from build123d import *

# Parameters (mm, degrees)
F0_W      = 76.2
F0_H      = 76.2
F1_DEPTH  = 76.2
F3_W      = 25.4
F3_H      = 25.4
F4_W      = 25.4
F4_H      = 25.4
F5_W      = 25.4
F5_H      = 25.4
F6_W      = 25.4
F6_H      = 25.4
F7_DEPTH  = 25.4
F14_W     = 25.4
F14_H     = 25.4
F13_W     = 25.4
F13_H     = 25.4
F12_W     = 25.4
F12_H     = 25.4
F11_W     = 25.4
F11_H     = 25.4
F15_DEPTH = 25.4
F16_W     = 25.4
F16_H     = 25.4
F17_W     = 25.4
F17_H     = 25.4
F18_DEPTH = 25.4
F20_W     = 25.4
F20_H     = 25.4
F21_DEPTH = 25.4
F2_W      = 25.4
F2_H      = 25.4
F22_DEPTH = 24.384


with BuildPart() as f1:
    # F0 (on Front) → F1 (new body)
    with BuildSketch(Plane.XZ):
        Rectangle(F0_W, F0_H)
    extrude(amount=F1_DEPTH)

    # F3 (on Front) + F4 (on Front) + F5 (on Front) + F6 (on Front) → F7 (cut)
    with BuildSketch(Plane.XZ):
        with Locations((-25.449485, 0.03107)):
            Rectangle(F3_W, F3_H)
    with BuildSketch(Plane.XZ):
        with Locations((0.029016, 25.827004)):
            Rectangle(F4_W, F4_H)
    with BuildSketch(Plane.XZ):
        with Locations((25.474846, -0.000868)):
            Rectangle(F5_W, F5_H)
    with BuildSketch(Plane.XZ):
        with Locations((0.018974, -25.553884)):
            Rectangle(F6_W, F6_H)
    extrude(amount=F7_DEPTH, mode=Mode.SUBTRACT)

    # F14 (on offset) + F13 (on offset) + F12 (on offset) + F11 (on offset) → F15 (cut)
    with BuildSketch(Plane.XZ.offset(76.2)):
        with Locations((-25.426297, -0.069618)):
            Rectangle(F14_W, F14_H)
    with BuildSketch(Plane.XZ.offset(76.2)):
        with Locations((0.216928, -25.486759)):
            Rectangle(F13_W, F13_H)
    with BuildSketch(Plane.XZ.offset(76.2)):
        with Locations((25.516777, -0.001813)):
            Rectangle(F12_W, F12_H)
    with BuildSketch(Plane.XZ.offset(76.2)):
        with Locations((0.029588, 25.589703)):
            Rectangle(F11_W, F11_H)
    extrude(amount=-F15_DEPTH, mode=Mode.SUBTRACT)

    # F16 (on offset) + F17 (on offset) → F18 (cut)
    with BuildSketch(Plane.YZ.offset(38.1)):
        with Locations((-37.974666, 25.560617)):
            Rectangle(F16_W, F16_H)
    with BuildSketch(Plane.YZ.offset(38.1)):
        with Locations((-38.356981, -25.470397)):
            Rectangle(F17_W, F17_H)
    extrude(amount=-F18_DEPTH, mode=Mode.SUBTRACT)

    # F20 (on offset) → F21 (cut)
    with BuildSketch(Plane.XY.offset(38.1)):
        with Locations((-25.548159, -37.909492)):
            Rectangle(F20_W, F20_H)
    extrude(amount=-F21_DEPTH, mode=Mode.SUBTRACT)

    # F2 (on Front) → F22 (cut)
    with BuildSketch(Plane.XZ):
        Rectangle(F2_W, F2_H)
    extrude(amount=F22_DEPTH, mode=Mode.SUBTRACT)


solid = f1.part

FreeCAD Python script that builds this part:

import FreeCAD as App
import Part
import Sketcher
Q = App.Units.Quantity

doc = App.newDocument("Part")
body = doc.addObject("PartDesign::Body", "Body")

# Sketch on XZ plane
sketch1 = body.newObject("Sketcher::SketchObject", "Sketch")
sketch1.AttachmentSupport = (doc.getObject("XZ_Plane"), [""])
sketch1.MapMode = "FlatFace"
sketch1.addGeometry([
    Part.LineSegment(App.Vector(-38, 38, 0), App.Vector(-38, -38, 0)),
    Part.LineSegment(App.Vector(-38, -38, 0), App.Vector(38, -38, 0)),
    Part.LineSegment(App.Vector(38, -38, 0), App.Vector(38, 38, 0)),
    Part.LineSegment(App.Vector(38, 38, 0), App.Vector(-38, 38, 0)),
], False)
sketch1.addConstraint([
    Sketcher.Constraint("Coincident", 0, 2, 1, 1),
    Sketcher.Constraint("Coincident", 1, 2, 2, 1),
    Sketcher.Constraint("Coincident", 2, 2, 3, 1),
    Sketcher.Constraint("Coincident", 3, 2, 0, 1),
    Sketcher.Constraint("Vertical", 0),
    Sketcher.Constraint("Horizontal", 1),
    Sketcher.Constraint("Vertical", 2),
    Sketcher.Constraint("Horizontal", 3),
    Sketcher.Constraint("Symmetric", 0, 2, 2, 2, -1, 1),
    Sketcher.Constraint("Equal", 3, 0),
    Sketcher.Constraint("DistanceX", 1, 1, 1, 2, Q("3 in")),
])
pad1 = body.newObject("PartDesign::Pad", "Pad")
pad1.Profile = sketch1
pad1.Length = Q("3 in")

# Sketch on XZ plane
sketch2 = body.newObject("Sketcher::SketchObject", "Sketch001")
sketch2.AttachmentSupport = (doc.getObject("XZ_Plane"), [""])
sketch2.MapMode = "FlatFace"
sketch2.addGeometry([
    Part.LineSegment(App.Vector(-38, 13, 0), App.Vector(-38, -13, 0)),  # 0
    Part.LineSegment(App.Vector(-38, -13, 0), App.Vector(-13, -13, 0)),  # 1
    Part.LineSegment(App.Vector(-13, -13, 0), App.Vector(-13, 13, 0)),  # 2
    Part.LineSegment(App.Vector(-13, 13, 0), App.Vector(-38, 13, 0)),  # 3
    Part.LineSegment(App.Vector(-13, 39, 0), App.Vector(-13, 13, 0)),  # 4
    Part.LineSegment(App.Vector(-13, 13, 0), App.Vector(13, 13, 0)),  # 5
    Part.LineSegment(App.Vector(13, 13, 0), App.Vector(13, 39, 0)),  # 6
    Part.LineSegment(App.Vector(13, 39, 0), App.Vector(-13, 39, 0)),  # 7
    Part.LineSegment(App.Vector(13, 13, 0), App.Vector(13, -13, 0)),  # 8
    Part.LineSegment(App.Vector(13, -13, 0), App.Vector(38, -13, 0)),  # 9
    Part.LineSegment(App.Vector(38, -13, 0), App.Vector(38, 13, 0)),  # 10
    Part.LineSegment(App.Vector(38, 13, 0), App.Vector(13, 13, 0)),  # 11
    Part.LineSegment(App.Vector(-13, -13, 0), App.Vector(-13, -38, 0)),  # 12
    Part.LineSegment(App.Vector(-13, -38, 0), App.Vector(13, -38, 0)),  # 13
    Part.LineSegment(App.Vector(13, -38, 0), App.Vector(13, -13, 0)),  # 14
    Part.LineSegment(App.Vector(13, -13, 0), App.Vector(-13, -13, 0)),  # 15
], False)
sketch2.addConstraint([
    Sketcher.Constraint("Coincident", 0, 2, 1, 1),
    Sketcher.Constraint("Coincident", 1, 2, 2, 1),
    Sketcher.Constraint("Coincident", 2, 2, 3, 1),
    Sketcher.Constraint("Coincident", 3, 2, 0, 1),
    Sketcher.Constraint("Coincident", 4, 2, 5, 1),
    Sketcher.Constraint("Coincident", 5, 2, 6, 1),
    Sketcher.Constraint("Coincident", 6, 2, 7, 1),
    Sketcher.Constraint("Coincident", 7, 2, 4, 1),
    Sketcher.Constraint("Coincident", 8, 2, 9, 1),
    Sketcher.Constraint("Coincident", 9, 2, 10, 1),
    Sketcher.Constraint("Coincident", 10, 2, 11, 1),
    Sketcher.Constraint("Coincident", 11, 2, 8, 1),
    Sketcher.Constraint("Coincident", 12, 2, 13, 1),
    Sketcher.Constraint("Coincident", 13, 2, 14, 1),
    Sketcher.Constraint("Coincident", 14, 2, 15, 1),
    Sketcher.Constraint("Coincident", 15, 2, 12, 1),
    Sketcher.Constraint("Vertical", 0),
    Sketcher.Constraint("Horizontal", 1),
    Sketcher.Constraint("Vertical", 2),
    Sketcher.Constraint("Horizontal", 3),
    Sketcher.Constraint("Vertical", 4),
    Sketcher.Constraint("Horizontal", 5),
    Sketcher.Constraint("Vertical", 6),
    Sketcher.Constraint("Horizontal", 7),
    Sketcher.Constraint("Vertical", 8),
    Sketcher.Constraint("Horizontal", 9),
    Sketcher.Constraint("Vertical", 10),
    Sketcher.Constraint("Horizontal", 11),
    Sketcher.Constraint("Vertical", 12),
    Sketcher.Constraint("Horizontal", 13),
    Sketcher.Constraint("Vertical", 14),
    Sketcher.Constraint("Horizontal", 15),
    Sketcher.Constraint("Equal", 3, 5),
    Sketcher.Constraint("Equal", 7, 9),
    Sketcher.Constraint("Equal", 11, 13),
    Sketcher.Constraint("Equal", 15, 0),
    Sketcher.Constraint("Equal", 2, 4),
    Sketcher.Constraint("Equal", 6, 8),
    Sketcher.Constraint("Equal", 10, 12),
    Sketcher.Constraint("DistanceX", 1, 1, 1, 2, Q("1 in")),
    Sketcher.Constraint("DistanceX", 2, 2, 4, 2, Q("0.078501 mm")),
    Sketcher.Constraint("DistanceY", 0, 2, -1, 1, Q("12.66893 mm")),
    Sketcher.Constraint("DistanceX", 1, 2, 8, 2, Q("25.524331 mm")),
    Sketcher.Constraint("DistanceY", 8, 2, 1, 2, Q("0.031938 mm")),
    Sketcher.Constraint("DistanceY", 8, 2, 5, 2, Q("25.827872 mm")),
    Sketcher.Constraint("DistanceX", 1, 2, 12, 2, Q("0.068459 mm")),
    Sketcher.Constraint("DistanceX", 0, 2, -1, 1, Q("38.149485 mm")),
    Sketcher.Constraint("DistanceY", 12, 2, -1, 1, Q("38.253884 mm")),
])
pocket1 = body.newObject("PartDesign::Pocket", "Pocket")
pocket1.Profile = sketch2
pocket1.Length = Q("1 in")
pocket1.Reversed = True

# Sketch on XZ plane
sketch3 = body.newObject("Sketcher::SketchObject", "Sketch002")
sketch3.AttachmentSupport = (doc.getObject("XZ_Plane"), [""])
sketch3.MapMode = "FlatFace"
sketch3.AttachmentOffset = App.Placement(App.Vector(0, 0, 3 * 25.4), App.Rotation())
sketch3.addGeometry([
    Part.LineSegment(App.Vector(-38, 13, 0), App.Vector(-38, -13, 0)),  # 0
    Part.LineSegment(App.Vector(-38, -13, 0), App.Vector(-13, -13, 0)),  # 1
    Part.LineSegment(App.Vector(-13, -13, 0), App.Vector(-13, 13, 0)),  # 2
    Part.LineSegment(App.Vector(-13, 13, 0), App.Vector(-38, 13, 0)),  # 3
    Part.LineSegment(App.Vector(-12, -13, 0), App.Vector(-12, -38, 0)),  # 4
    Part.LineSegment(App.Vector(-12, -38, 0), App.Vector(13, -38, 0)),  # 5
    Part.LineSegment(App.Vector(13, -38, 0), App.Vector(13, -13, 0)),  # 6
    Part.LineSegment(App.Vector(13, -13, 0), App.Vector(-12, -13, 0)),  # 7
    Part.LineSegment(App.Vector(13, 13, 0), App.Vector(13, -13, 0)),  # 8
    Part.LineSegment(App.Vector(13, -13, 0), App.Vector(38, -13, 0)),  # 9
    Part.LineSegment(App.Vector(38, -13, 0), App.Vector(38, 13, 0)),  # 10
    Part.LineSegment(App.Vector(38, 13, 0), App.Vector(13, 13, 0)),  # 11
    Part.LineSegment(App.Vector(-13, 38, 0), App.Vector(-13, 13, 0)),  # 12
    Part.LineSegment(App.Vector(-13, 13, 0), App.Vector(13, 13, 0)),  # 13
    Part.LineSegment(App.Vector(13, 13, 0), App.Vector(13, 38, 0)),  # 14
    Part.LineSegment(App.Vector(13, 38, 0), App.Vector(-13, 38, 0)),  # 15
], False)
sketch3.addConstraint([
    Sketcher.Constraint("Coincident", 0, 2, 1, 1),
    Sketcher.Constraint("Coincident", 1, 2, 2, 1),
    Sketcher.Constraint("Coincident", 2, 2, 3, 1),
    Sketcher.Constraint("Coincident", 3, 2, 0, 1),
    Sketcher.Constraint("Coincident", 4, 2, 5, 1),
    Sketcher.Constraint("Coincident", 5, 2, 6, 1),
    Sketcher.Constraint("Coincident", 6, 2, 7, 1),
    Sketcher.Constraint("Coincident", 7, 2, 4, 1),
    Sketcher.Constraint("Coincident", 8, 2, 9, 1),
    Sketcher.Constraint("Coincident", 9, 2, 10, 1),
    Sketcher.Constraint("Coincident", 10, 2, 11, 1),
    Sketcher.Constraint("Coincident", 11, 2, 8, 1),
    Sketcher.Constraint("Coincident", 12, 2, 13, 1),
    Sketcher.Constraint("Coincident", 13, 2, 14, 1),
    Sketcher.Constraint("Coincident", 14, 2, 15, 1),
    Sketcher.Constraint("Coincident", 15, 2, 12, 1),
    Sketcher.Constraint("Vertical", 0),
    Sketcher.Constraint("Horizontal", 1),
    Sketcher.Constraint("Vertical", 2),
    Sketcher.Constraint("Horizontal", 3),
    Sketcher.Constraint("Vertical", 4),
    Sketcher.Constraint("Horizontal", 5),
    Sketcher.Constraint("Vertical", 6),
    Sketcher.Constraint("Horizontal", 7),
    Sketcher.Constraint("Vertical", 8),
    Sketcher.Constraint("Horizontal", 9),
    Sketcher.Constraint("Vertical", 10),
    Sketcher.Constraint("Horizontal", 11),
    Sketcher.Constraint("Vertical", 12),
    Sketcher.Constraint("Horizontal", 13),
    Sketcher.Constraint("Vertical", 14),
    Sketcher.Constraint("Horizontal", 15),
    Sketcher.Constraint("Equal", 3, 5),
    Sketcher.Constraint("Equal", 7, 9),
    Sketcher.Constraint("Equal", 11, 13),
    Sketcher.Constraint("Equal", 15, 0),
    Sketcher.Constraint("Equal", 2, 4),
    Sketcher.Constraint("Equal", 6, 8),
    Sketcher.Constraint("Equal", 10, 12),
    Sketcher.Constraint("DistanceX", 1, 1, 1, 2, Q("1 in")),
    Sketcher.Constraint("DistanceX", 2, 2, 12, 2, Q("0.0022002 in")),
    Sketcher.Constraint("DistanceY", 4, 2, -1, 1, Q("38.186759 mm")),
    Sketcher.Constraint("DistanceY", 4, 2, 1, 2, Q("25.417141 mm")),
    Sketcher.Constraint("DistanceX", 8, 2, 6, 2, Q("0.100151 mm")),
    Sketcher.Constraint("DistanceY", 2, 2, 12, 2, Q("0.259321 mm")),
    Sketcher.Constraint("DistanceX", 12, 2, 11, 2, Q("25.487189 mm")),
    Sketcher.Constraint("DistanceX", 0, 2, -1, 1, Q("38.126297 mm")),
    Sketcher.Constraint("DistanceY", 8, 2, -1, 1, Q("12.701813 mm")),
])
pocket2 = body.newObject("PartDesign::Pocket", "Pocket001")
pocket2.Profile = sketch3
pocket2.Length = Q("1 in")

# Sketch on YZ plane
sketch4 = body.newObject("Sketcher::SketchObject", "Sketch003")
sketch4.AttachmentSupport = (doc.getObject("YZ_Plane"), [""])
sketch4.MapMode = "FlatFace"
sketch4.AttachmentOffset = App.Placement(App.Vector(0, 0, 1.5 * 25.4), App.Rotation())
sketch4.addGeometry([
    Part.LineSegment(App.Vector(-51, 38, 0), App.Vector(-51, 13, 0)),  # 0
    Part.LineSegment(App.Vector(-51, 13, 0), App.Vector(-25, 13, 0)),  # 1
    Part.LineSegment(App.Vector(-25, 13, 0), App.Vector(-25, 38, 0)),  # 2
    Part.LineSegment(App.Vector(-25, 38, 0), App.Vector(-51, 38, 0)),  # 3
    Part.LineSegment(App.Vector(-51, -13, 0), App.Vector(-51, -38, 0)),  # 4
    Part.LineSegment(App.Vector(-51, -38, 0), App.Vector(-26, -38, 0)),  # 5
    Part.LineSegment(App.Vector(-26, -38, 0), App.Vector(-26, -13, 0)),  # 6
    Part.LineSegment(App.Vector(-26, -13, 0), App.Vector(-51, -13, 0)),  # 7
], False)
sketch4.addConstraint([
    Sketcher.Constraint("Coincident", 0, 2, 1, 1),
    Sketcher.Constraint("Coincident", 1, 2, 2, 1),
    Sketcher.Constraint("Coincident", 2, 2, 3, 1),
    Sketcher.Constraint("Coincident", 3, 2, 0, 1),
    Sketcher.Constraint("Coincident", 4, 2, 5, 1),
    Sketcher.Constraint("Coincident", 5, 2, 6, 1),
    Sketcher.Constraint("Coincident", 6, 2, 7, 1),
    Sketcher.Constraint("Coincident", 7, 2, 4, 1),
    Sketcher.Constraint("Vertical", 0),
    Sketcher.Constraint("Horizontal", 1),
    Sketcher.Constraint("Vertical", 2),
    Sketcher.Constraint("Horizontal", 3),
    Sketcher.Constraint("Vertical", 4),
    Sketcher.Constraint("Horizontal", 5),
    Sketcher.Constraint("Vertical", 6),
    Sketcher.Constraint("Horizontal", 7),
    Sketcher.Constraint("Equal", 3, 5),
    Sketcher.Constraint("Equal", 7, 0),
    Sketcher.Constraint("Equal", 2, 4),
    Sketcher.Constraint("DistanceX", 1, 1, 1, 2, Q("1 in")),
    Sketcher.Constraint("DistanceX", 4, 2, -1, 1, Q("51.056981 mm")),
    Sketcher.Constraint("DistanceX", 0, 2, -1, 1, Q("50.674666 mm")),
    Sketcher.Constraint("DistanceY", -1, 1, 0, 2, Q("12.860617 mm")),
    Sketcher.Constraint("DistanceY", 4, 2, -1, 1, Q("38.170397 mm")),
])
pocket3 = body.newObject("PartDesign::Pocket", "Pocket002")
pocket3.Profile = sketch4
pocket3.Length = Q("1 in")

# Sketch on XY plane
sketch5 = body.newObject("Sketcher::SketchObject", "Sketch004")
sketch5.AttachmentSupport = (doc.getObject("XY_Plane"), [""])
sketch5.MapMode = "FlatFace"
sketch5.AttachmentOffset = App.Placement(App.Vector(0, 0, 1.5 * 25.4), App.Rotation())
sketch5.addGeometry([
    Part.LineSegment(App.Vector(-38, -25, 0), App.Vector(-38, -51, 0)),
    Part.LineSegment(App.Vector(-38, -51, 0), App.Vector(-13, -51, 0)),
    Part.LineSegment(App.Vector(-13, -51, 0), App.Vector(-13, -25, 0)),
    Part.LineSegment(App.Vector(-13, -25, 0), App.Vector(-38, -25, 0)),
], False)
sketch5.addConstraint([
    Sketcher.Constraint("Coincident", 0, 2, 1, 1),
    Sketcher.Constraint("Coincident", 1, 2, 2, 1),
    Sketcher.Constraint("Coincident", 2, 2, 3, 1),
    Sketcher.Constraint("Coincident", 3, 2, 0, 1),
    Sketcher.Constraint("Vertical", 0),
    Sketcher.Constraint("Horizontal", 1),
    Sketcher.Constraint("Vertical", 2),
    Sketcher.Constraint("Horizontal", 3),
    Sketcher.Constraint("Equal", 3, 0),
    Sketcher.Constraint("DistanceX", 1, 1, 1, 2, Q("1 in")),
    Sketcher.Constraint("DistanceX", 0, 2, -1, 1, Q("38.248159 mm")),
    Sketcher.Constraint("DistanceY", 0, 2, -1, 1, Q("50.609492 mm")),
])
pocket4 = body.newObject("PartDesign::Pocket", "Pocket003")
pocket4.Profile = sketch5
pocket4.Length = Q("1 in")

# Sketch on XZ plane
sketch6 = body.newObject("Sketcher::SketchObject", "Sketch005")
sketch6.AttachmentSupport = (doc.getObject("XZ_Plane"), [""])
sketch6.MapMode = "FlatFace"
sketch6.addGeometry([
    Part.LineSegment(App.Vector(-13, 13, 0), App.Vector(-13, -13, 0)),
    Part.LineSegment(App.Vector(-13, -13, 0), App.Vector(13, -13, 0)),
    Part.LineSegment(App.Vector(13, -13, 0), App.Vector(13, 13, 0)),
    Part.LineSegment(App.Vector(13, 13, 0), App.Vector(-13, 13, 0)),
], False)
sketch6.addConstraint([
    Sketcher.Constraint("Coincident", 0, 2, 1, 1),
    Sketcher.Constraint("Coincident", 1, 2, 2, 1),
    Sketcher.Constraint("Coincident", 2, 2, 3, 1),
    Sketcher.Constraint("Coincident", 3, 2, 0, 1),
    Sketcher.Constraint("Vertical", 0),
    Sketcher.Constraint("Horizontal", 1),
    Sketcher.Constraint("Vertical", 2),
    Sketcher.Constraint("Horizontal", 3),
    Sketcher.Constraint("Symmetric", 0, 2, 2, 2, -1, 1),
    Sketcher.Constraint("Equal", 3, 0),
    Sketcher.Constraint("DistanceX", 1, 1, 1, 2, Q("1 in")),
])
pocket5 = body.newObject("PartDesign::Pocket", "Pocket004")
pocket5.Profile = sketch6
pocket5.Length = Q("0.96 in")
pocket5.Reversed = True

doc.recompute()
